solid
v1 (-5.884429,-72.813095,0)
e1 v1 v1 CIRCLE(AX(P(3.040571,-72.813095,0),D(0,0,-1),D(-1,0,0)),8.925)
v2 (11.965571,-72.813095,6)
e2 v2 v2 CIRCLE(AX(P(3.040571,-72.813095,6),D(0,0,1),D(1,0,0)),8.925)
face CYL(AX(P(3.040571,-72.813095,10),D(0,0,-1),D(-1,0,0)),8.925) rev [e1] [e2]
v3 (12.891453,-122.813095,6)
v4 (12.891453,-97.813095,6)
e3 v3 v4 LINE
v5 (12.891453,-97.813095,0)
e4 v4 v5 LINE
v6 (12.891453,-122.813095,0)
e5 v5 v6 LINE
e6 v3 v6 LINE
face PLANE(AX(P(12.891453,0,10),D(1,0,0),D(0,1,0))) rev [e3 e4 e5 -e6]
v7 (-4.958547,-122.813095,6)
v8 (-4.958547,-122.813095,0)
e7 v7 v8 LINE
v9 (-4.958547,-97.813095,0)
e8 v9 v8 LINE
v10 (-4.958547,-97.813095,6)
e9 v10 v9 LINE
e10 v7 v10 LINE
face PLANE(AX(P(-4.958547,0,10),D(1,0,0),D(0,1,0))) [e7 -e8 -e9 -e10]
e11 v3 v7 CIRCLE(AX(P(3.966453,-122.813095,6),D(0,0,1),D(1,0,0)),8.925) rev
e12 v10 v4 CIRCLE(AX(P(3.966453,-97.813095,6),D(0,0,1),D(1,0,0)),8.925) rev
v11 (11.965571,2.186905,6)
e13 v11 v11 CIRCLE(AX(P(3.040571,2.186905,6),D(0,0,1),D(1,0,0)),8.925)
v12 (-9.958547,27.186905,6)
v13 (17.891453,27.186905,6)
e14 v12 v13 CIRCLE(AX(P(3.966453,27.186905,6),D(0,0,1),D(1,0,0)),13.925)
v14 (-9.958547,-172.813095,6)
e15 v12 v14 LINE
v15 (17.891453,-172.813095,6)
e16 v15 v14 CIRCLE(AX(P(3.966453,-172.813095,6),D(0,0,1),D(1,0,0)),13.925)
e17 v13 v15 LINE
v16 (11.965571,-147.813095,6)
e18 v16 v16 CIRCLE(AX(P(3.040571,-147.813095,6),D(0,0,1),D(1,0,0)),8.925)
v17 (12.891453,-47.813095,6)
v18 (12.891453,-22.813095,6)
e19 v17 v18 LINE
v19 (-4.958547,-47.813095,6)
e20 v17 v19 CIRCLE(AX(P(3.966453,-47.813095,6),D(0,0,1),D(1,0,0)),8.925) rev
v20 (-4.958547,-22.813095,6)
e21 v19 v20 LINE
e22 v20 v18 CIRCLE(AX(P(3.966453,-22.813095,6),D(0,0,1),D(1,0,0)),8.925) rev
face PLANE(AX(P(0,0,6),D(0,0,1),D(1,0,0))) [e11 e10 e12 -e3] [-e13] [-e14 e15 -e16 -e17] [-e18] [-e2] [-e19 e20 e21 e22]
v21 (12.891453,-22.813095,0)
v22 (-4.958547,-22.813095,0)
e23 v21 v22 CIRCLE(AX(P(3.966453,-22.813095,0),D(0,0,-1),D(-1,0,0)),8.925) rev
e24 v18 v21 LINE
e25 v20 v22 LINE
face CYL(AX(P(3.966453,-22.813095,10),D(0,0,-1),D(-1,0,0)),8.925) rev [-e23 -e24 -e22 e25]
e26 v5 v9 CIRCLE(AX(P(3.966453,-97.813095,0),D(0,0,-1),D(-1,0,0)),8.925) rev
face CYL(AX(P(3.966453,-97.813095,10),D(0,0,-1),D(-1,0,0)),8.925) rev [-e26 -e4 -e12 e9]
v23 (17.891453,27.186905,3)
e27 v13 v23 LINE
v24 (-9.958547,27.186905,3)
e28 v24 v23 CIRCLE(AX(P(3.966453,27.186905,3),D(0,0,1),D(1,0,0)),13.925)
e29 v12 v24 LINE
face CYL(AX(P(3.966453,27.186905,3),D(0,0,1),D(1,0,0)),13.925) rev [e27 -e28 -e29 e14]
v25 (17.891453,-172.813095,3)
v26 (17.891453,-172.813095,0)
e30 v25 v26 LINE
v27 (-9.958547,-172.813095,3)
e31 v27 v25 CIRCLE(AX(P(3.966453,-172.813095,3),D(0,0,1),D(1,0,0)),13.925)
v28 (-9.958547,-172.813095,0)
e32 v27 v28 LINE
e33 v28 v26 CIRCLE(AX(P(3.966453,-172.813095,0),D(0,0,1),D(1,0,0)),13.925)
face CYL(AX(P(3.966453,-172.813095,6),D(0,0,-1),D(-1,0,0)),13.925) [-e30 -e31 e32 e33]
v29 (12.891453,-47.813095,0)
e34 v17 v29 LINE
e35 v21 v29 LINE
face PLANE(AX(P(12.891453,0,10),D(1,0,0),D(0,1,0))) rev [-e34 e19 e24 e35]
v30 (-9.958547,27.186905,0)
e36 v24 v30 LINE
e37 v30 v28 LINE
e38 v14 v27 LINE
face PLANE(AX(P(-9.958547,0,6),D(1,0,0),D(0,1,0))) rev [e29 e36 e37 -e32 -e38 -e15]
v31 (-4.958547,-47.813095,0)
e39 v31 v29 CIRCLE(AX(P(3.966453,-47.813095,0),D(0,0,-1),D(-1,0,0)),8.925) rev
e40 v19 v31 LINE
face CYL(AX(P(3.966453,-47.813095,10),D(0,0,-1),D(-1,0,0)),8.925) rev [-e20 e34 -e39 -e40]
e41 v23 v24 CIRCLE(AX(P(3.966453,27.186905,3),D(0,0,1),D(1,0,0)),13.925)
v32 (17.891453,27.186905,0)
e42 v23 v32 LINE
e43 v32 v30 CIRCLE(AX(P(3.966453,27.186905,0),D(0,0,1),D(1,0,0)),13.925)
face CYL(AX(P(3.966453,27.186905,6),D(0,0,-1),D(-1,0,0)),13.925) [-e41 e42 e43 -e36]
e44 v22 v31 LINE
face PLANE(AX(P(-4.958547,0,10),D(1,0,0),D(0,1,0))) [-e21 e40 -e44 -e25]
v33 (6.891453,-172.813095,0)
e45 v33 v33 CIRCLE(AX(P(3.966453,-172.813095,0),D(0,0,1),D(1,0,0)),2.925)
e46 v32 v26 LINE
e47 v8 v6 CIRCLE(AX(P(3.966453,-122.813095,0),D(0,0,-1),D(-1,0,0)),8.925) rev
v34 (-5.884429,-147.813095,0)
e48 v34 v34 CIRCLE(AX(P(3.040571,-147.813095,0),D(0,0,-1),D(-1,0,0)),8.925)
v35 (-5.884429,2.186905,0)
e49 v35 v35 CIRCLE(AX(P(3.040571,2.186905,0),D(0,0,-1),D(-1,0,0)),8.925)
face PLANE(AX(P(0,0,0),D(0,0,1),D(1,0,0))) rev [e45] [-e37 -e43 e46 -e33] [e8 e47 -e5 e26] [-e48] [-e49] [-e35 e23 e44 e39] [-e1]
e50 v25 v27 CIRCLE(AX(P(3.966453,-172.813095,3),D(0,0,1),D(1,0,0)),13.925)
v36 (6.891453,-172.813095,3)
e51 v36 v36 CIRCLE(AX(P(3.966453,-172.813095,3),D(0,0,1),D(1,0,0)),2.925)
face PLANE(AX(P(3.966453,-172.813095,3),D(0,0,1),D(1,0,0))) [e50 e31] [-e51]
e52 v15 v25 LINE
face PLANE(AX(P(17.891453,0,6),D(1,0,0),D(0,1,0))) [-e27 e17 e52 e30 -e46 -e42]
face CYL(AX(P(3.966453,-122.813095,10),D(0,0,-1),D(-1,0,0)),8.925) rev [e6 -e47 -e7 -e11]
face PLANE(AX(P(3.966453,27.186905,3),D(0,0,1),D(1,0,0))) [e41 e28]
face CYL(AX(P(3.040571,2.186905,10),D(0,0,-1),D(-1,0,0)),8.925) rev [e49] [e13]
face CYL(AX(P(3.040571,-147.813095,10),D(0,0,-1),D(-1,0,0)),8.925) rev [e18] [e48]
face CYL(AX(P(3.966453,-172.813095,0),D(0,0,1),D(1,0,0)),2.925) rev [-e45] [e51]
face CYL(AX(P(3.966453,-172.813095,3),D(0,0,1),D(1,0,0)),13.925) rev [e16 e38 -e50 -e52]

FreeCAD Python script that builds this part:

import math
import FreeCAD as App
import Part
import Sketcher

doc = App.newDocument("Part")
body = doc.addObject("PartDesign::Body", "Body")

# Sketch on XY plane
sketch1 = body.newObject("Sketcher::SketchObject", "Sketch")
sketch1.AttachmentSupport = (doc.getObject("XY_Plane"), [""])
sketch1.MapMode = "FlatFace"
sketch1.addGeometry([
    Part.LineSegment(App.Vector(-10, 27, 0), App.Vector(-10, -173, 0)),
    Part.ArcOfCircle(Part.Circle(App.Vector(4, -173, 0), App.Vector(0, 0, 1), 14), math.radians(180), math.radians(360)),
    Part.LineSegment(App.Vector(18, -173, 0), App.Vector(18, 27, 0)),
    Part.ArcOfCircle(Part.Circle(App.Vector(4, 27, 0), App.Vector(0, 0, 1), 14), math.radians(0), math.radians(180)),
], False)
sketch1.addConstraint([
    Sketcher.Constraint("Tangent", 0, 2, 1, 1),
    Sketcher.Constraint("Tangent", 1, 2, 2, 1),
    Sketcher.Constraint("Tangent", 2, 2, 3, 1),
    Sketcher.Constraint("Tangent", 3, 2, 0, 1),
    Sketcher.Constraint("Vertical", 0),
    Sketcher.Constraint("Vertical", 2),
    Sketcher.Constraint("DistanceY", 0, 2, 0, 1, 200.0),
    Sketcher.Constraint("Radius", 1, 13.925),
    Sketcher.Constraint("DistanceX", -1, 1, 1, 3, 3.966453),
    Sketcher.Constraint("DistanceY", 1, 3, -1, 1, 172.813095),
])
pad1 = body.newObject("PartDesign::Pad", "Pad")
pad1.Profile = sketch1
pad1.Length = 6

# Sketch on XY plane
sketch2 = body.newObject("Sketcher::SketchObject", "Sketch001")
sketch2.AttachmentSupport = (doc.getObject("XY_Plane"), [""])
sketch2.MapMode = "FlatFace"
sketch2.AttachmentOffset = App.Placement(App.Vector(0, 0, 6), App.Rotation())
sketch2.addGeometry(Part.Circle(App.Vector(4, -173, 0), App.Vector(0, 0, 1), 14), False)
sketch2.addConstraint([
    Sketcher.Constraint("Diameter", 0, 27.85),
    Sketcher.Constraint("DistanceX", -1, 1, 0, 3, 3.966453),
    Sketcher.Constraint("DistanceY", 0, 3, -1, 1, 172.813095),
])
pocket1 = body.newObject("PartDesign::Pocket", "Pocket")
pocket1.Profile = sketch2
pocket1.Length = 3

# Sketch on XY plane
sketch3 = body.newObject("Sketcher::SketchObject", "Sketch002")
sketch3.AttachmentSupport = (doc.getObject("XY_Plane"), [""])
sketch3.MapMode = "FlatFace"
sketch3.AttachmentOffset = App.Placement(App.Vector(0, 0, 3), App.Rotation())
sketch3.addGeometry(Part.Circle(App.Vector(4, -172.8, 0), App.Vector(0, 0, 1), 2.9), False)
sketch3.addConstraint([
    Sketcher.Constraint("Diameter", 0, 5.85),
    Sketcher.Constraint("DistanceX", -1, 1, 0, 3, 3.966453),
    Sketcher.Constraint("DistanceY", 0, 3, -1, 1, 172.813095),
])
pocket2 = body.newObject("PartDesign::Pocket", "Pocket001")
pocket2.Profile = sketch3
pocket2.Length = 3

# Sketch on XY plane
sketch4 = body.newObject("Sketcher::SketchObject", "Sketch003")
sketch4.AttachmentSupport = (doc.getObject("XY_Plane"), [""])
sketch4.MapMode = "FlatFace"
sketch4.AttachmentOffset = App.Placement(App.Vector(0, 0, 6), App.Rotation())
sketch4.addGeometry(Part.Circle(App.Vector(4, 27, 0), App.Vector(0, 0, 1), 14), False)
sketch4.addConstraint([
    Sketcher.Constraint("Diameter", 0, 27.85),
    Sketcher.Constraint("DistanceX", -1, 1, 0, 3, 3.966453),
    Sketcher.Constraint("DistanceY", -1, 1, 0, 3, 27.186905),
])
pocket3 = body.newObject("PartDesign::Pocket", "Pocket002")
pocket3.Profile = sketch4
pocket3.Length = 3

# Sketch on XY plane
sketch5 = body.newObject("Sketcher::SketchObject", "Sketch004")
sketch5.AttachmentSupport = (doc.getObject("XY_Plane"), [""])
sketch5.MapMode = "FlatFace"
sketch5.addGeometry([
    Part.Circle(App.Vector(3, 2, 0), App.Vector(0, 0, 1), 9),  # 0
    Part.ArcOfCircle(Part.Circle(App.Vector(4, -23, 0), App.Vector(0, 0, 1), 9), math.radians(0), math.radians(180)),  # 1
    Part.LineSegment(App.Vector(13, -23, 0), App.Vector(13, -48, 0)),  # 2
    Part.ArcOfCircle(Part.Circle(App.Vector(4, -48, 0), App.Vector(0, 0, 1), 9), math.radians(180), math.radians(360)),  # 3
    Part.LineSegment(App.Vector(-5, -48, 0), App.Vector(-5, -23, 0)),  # 4
    Part.Circle(App.Vector(3, -73, 0), App.Vector(0, 0, 1), 9),  # 5
    Part.LineSegment(App.Vector(13, -98, 0), App.Vector(13, -123, 0)),  # 6
    Part.ArcOfCircle(Part.Circle(App.Vector(4, -123, 0), App.Vector(0, 0, 1), 9), math.radians(180), math.radians(360)),  # 7
    Part.LineSegment(App.Vector(-5, -123, 0), App.Vector(-5, -98, 0)),  # 8
    Part.ArcOfCircle(Part.Circle(App.Vector(4, -98, 0), App.Vector(0, 0, 1), 9), math.radians(0), math.radians(180)),  # 9
    Part.Circle(App.Vector(3, -148, 0), App.Vector(0, 0, 1), 9),  # 10
], False)
sketch5.addConstraint([
    Sketcher.Constraint("Tangent", 1, 1, 2, 1),
    Sketcher.Constraint("Tangent", 2, 2, 3, 2),
    Sketcher.Constraint("Tangent", 3, 1, 4, 1),
    Sketcher.Constraint("Tangent", 4, 2, 1, 2),
    Sketcher.Constraint("Tangent", 6, 2, 7, 2),
    Sketcher.Constraint("Tangent", 7, 1, 8, 1),
    Sketcher.Constraint("Tangent", 8, 2, 9, 2),
    Sketcher.Constraint("Tangent", 9, 1, 6, 1),
    Sketcher.Constraint("Vertical", 2),
    Sketcher.Constraint("Vertical", 4),
    Sketcher.Constraint("Vertical", 6),
    Sketcher.Constraint("Vertical", 8),
    Sketcher.Constraint("Equal", 0, 1),
    Sketcher.Constraint("Equal", 3, 5),
    Sketcher.Constraint("Equal", 5, 7),
    Sketcher.Constraint("Equal", 9, 10),
    Sketcher.Constraint("Vertical", 0, 3, 5, 3),
    Sketcher.Constraint("Vertical", 3, 3, 7, 3),
    Sketcher.Constraint("Vertical", 5, 3, 10, 3),
    Sketcher.Constraint("Equal", 4, 6),
    Sketcher.Constraint("Diameter", 0, 17.85),
    Sketcher.Constraint("DistanceY", 2, 2, 2, 1, 25.0),
    Sketcher.Constraint("DistanceY", 1, 3, 0, 3, 25.0),
    Sketcher.Constraint("DistanceY", 5, 3, 3, 3, 25.0),
    Sketcher.Constraint("DistanceY", 7, 3, 5, 3, 50.0),
    Sketcher.Constraint("DistanceY", 10, 3, 7, 3, 25.0),
    Sketcher.Constraint("DistanceX", -1, 1, 0, 3, 3.040571),
    Sketcher.Constraint("DistanceX", 0, 3, 1, 3, 0.925881),
    Sketcher.Constraint("DistanceY", -1, 1, 0, 3, 2.186905),
])
pocket4 = body.newObject("PartDesign::Pocket", "Pocket003")
pocket4.Profile = sketch5
pocket4.Length = 10
pocket4.Reversed = True

doc.recompute()
